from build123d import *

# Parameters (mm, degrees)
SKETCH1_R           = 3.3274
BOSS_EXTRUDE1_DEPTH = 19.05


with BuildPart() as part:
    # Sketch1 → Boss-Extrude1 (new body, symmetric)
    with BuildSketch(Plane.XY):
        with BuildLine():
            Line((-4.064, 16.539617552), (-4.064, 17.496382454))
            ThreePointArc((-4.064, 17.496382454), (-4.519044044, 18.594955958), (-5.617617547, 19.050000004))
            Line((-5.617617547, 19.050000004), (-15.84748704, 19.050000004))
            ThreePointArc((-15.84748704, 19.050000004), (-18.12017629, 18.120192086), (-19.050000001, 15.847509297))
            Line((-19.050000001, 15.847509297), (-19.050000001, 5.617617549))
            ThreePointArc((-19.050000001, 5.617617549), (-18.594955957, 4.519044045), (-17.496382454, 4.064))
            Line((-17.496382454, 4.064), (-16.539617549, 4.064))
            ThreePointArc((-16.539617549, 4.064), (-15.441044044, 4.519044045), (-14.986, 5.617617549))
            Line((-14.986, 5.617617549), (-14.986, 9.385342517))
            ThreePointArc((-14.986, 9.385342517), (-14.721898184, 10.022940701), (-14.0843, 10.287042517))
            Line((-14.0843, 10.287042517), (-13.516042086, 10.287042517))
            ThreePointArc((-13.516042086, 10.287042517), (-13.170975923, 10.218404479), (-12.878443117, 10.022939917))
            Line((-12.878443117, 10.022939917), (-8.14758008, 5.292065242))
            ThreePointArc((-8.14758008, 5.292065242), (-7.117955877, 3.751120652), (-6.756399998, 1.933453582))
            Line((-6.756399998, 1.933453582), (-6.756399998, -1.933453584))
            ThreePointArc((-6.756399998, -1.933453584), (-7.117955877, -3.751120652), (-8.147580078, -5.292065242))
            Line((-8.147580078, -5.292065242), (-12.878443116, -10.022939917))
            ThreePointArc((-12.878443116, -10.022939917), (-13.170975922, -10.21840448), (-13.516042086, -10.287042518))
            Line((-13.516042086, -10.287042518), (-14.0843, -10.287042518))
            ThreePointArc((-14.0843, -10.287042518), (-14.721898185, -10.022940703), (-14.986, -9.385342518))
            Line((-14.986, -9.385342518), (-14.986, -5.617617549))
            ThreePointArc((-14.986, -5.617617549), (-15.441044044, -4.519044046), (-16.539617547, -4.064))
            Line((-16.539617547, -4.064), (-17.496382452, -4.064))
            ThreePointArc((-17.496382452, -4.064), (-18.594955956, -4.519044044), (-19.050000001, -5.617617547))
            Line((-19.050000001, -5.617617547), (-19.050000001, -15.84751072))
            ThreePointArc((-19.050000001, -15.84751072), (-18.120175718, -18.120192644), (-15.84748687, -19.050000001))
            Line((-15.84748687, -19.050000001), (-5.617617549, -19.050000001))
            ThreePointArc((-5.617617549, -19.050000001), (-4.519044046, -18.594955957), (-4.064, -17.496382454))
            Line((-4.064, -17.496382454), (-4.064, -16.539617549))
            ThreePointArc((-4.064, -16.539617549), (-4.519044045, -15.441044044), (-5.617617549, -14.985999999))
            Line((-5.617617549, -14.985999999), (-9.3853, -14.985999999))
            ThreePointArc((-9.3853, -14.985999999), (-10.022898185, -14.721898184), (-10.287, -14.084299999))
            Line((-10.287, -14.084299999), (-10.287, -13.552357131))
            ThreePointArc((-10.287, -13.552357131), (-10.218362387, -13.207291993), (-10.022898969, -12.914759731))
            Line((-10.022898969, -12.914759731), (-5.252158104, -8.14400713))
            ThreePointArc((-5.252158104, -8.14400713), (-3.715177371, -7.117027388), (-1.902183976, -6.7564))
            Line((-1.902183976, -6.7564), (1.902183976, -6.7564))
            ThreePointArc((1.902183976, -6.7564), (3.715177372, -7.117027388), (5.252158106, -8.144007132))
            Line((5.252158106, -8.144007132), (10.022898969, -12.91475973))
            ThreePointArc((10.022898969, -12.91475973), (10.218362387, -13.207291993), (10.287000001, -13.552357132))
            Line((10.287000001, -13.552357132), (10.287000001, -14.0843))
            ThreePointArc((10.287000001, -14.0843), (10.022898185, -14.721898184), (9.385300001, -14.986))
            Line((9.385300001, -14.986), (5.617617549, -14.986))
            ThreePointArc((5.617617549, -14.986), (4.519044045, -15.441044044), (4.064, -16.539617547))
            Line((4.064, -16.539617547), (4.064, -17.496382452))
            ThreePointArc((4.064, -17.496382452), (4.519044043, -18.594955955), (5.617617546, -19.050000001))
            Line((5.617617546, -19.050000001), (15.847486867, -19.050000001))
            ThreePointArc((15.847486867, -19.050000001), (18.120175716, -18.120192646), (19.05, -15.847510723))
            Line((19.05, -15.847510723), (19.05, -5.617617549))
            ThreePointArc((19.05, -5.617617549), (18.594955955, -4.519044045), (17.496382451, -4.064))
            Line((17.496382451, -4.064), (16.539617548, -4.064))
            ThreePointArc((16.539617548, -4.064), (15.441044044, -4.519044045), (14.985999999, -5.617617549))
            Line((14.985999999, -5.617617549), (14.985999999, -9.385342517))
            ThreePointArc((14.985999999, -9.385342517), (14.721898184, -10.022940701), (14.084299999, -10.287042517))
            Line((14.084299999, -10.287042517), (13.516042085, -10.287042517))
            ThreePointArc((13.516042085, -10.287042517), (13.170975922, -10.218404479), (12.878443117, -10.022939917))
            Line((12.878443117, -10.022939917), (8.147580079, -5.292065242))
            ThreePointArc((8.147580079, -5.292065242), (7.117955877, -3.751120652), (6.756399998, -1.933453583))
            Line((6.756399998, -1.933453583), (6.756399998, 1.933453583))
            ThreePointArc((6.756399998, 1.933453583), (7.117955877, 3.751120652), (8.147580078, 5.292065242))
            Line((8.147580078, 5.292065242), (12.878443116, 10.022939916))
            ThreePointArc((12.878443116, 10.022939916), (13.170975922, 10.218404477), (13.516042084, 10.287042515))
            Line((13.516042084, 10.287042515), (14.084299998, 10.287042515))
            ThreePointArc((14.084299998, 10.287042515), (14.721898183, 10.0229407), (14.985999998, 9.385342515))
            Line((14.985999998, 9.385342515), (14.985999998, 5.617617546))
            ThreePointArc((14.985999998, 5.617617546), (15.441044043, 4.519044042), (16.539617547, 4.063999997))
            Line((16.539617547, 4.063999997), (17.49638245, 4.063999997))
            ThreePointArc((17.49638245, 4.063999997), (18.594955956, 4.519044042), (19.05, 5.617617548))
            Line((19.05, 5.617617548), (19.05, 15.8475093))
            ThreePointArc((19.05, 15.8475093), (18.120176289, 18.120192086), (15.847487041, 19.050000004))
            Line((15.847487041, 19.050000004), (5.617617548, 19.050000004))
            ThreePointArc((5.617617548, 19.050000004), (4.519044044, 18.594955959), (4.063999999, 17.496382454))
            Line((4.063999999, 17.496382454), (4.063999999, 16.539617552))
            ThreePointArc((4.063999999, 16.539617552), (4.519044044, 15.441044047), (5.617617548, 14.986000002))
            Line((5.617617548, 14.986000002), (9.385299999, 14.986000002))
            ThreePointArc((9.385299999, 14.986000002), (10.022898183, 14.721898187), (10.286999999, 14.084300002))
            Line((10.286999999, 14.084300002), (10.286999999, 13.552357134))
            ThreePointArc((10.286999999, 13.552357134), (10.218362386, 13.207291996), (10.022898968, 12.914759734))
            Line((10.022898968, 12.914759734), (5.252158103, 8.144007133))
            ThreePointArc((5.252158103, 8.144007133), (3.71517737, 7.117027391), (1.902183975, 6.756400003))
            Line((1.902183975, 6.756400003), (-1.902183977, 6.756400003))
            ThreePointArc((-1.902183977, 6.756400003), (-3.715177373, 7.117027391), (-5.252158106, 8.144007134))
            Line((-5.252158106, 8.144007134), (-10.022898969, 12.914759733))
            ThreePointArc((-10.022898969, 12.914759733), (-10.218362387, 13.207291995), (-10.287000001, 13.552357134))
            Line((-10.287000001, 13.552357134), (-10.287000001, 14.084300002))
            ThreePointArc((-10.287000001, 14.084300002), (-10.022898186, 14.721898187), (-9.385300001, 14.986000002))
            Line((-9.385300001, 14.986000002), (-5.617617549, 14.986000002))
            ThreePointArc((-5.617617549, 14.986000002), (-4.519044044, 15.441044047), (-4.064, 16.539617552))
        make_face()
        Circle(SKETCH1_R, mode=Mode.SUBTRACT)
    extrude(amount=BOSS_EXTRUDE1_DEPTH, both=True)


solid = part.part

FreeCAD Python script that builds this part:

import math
import FreeCAD as App
import Part
import Sketcher
from FreeCAD import Vector
Q = App.Units.Quantity

doc = App.newDocument("Part")
body = doc.addObject("PartDesign::Body", "Body")

# Sketch on XY plane
sketch1 = body.newObject("Sketcher::SketchObject", "Sketch")
sketch1.AttachmentSupport = (doc.getObject("XY_Plane"), [""])
sketch1.MapMode = "FlatFace"
sketch1.addGeometry(Part.LineSegment(Vector(-4.064, 16.539618, 0), Vector(-4.064, 17.496382, 0)), False)
sketch1.addGeometry(Part.ArcOfCircle(Part.Circle(Vector(-5.617618, 17.496382, 0), Vector(0, 0, 1), 1.553618), math.radians(0), math.radians(90)), False)
sketch1.addGeometry(Part.LineSegment(Vector(-5.617618, 19.05, 0), Vector(-15.847487, 19.05, 0)), False)
sketch1.addGeometry(Part.ArcOfCircle(Part.Circle(Vector(-15.87512, 15.87512, 0), Vector(0, 0, 1), 3.175), math.radians(89.501331), math.radians(180.498271)), False)
sketch1.addGeometry(Part.LineSegment(Vector(-19.05, 15.847509, 0), Vector(-19.05, 5.617618, 0)), False)
sketch1.addGeometry(Part.ArcOfCircle(Part.Circle(Vector(-17.496382, 5.617618, 0), Vector(0, 0, 1), 1.553618), math.radians(180), math.radians(270)), False)
sketch1.addGeometry(Part.LineSegment(Vector(-17.496382, 4.064, 0), Vector(-16.539618, 4.064, 0)), False)
sketch1.addGeometry(Part.ArcOfCircle(Part.Circle(Vector(-16.539618, 5.617618, 0), Vector(0, 0, 1), 1.553618), math.radians(-90), math.radians(0)), False)
sketch1.addGeometry(Part.LineSegment(Vector(-14.986, 5.617618, 0), Vector(-14.986, 9.385343, 0)), False)
sketch1.addGeometry(Part.ArcOfCircle(Part.Circle(Vector(-14.0843, 9.385343, 0), Vector(0, 0, 1), 0.9017), math.radians(90), math.radians(180)), False)
sketch1.addGeometry(Part.LineSegment(Vector(-14.0843, 10.287043, 0), Vector(-13.516042, 10.287043, 0)), False)
sketch1.addGeometry(Part.ArcOfCircle(Part.Circle(Vector(-13.516042, 9.385343, 0), Vector(0, 0, 1), 0.9017), math.radians(44.99993), math.radians(90)), False)
sketch1.addGeometry(Part.LineSegment(Vector(-12.878443, 10.02294, 0), Vector(-8.14758, 5.292065, 0)), False)
sketch1.addGeometry(Part.ArcOfCircle(Part.Circle(Vector(-11.5062, 1.933454, 0), Vector(0, 0, 1), 4.7498), math.radians(0), math.radians(44.99993)), False)
sketch1.addGeometry(Part.LineSegment(Vector(-6.7564, 1.933454, 0), Vector(-6.7564, -1.933454, 0)), False)
sketch1.addGeometry(Part.ArcOfCircle(Part.Circle(Vector(-11.5062, -1.933454, 0), Vector(0, 0, 1), 4.7498), math.radians(-44.99993), math.radians(0)), False)
sketch1.addGeometry(Part.LineSegment(Vector(-8.14758, -5.292065, 0), Vector(-12.878443, -10.02294, 0)), False)
sketch1.addGeometry(Part.ArcOfCircle(Part.Circle(Vector(-13.516042, -9.385343, 0), Vector(0, 0, 1), 0.9017), math.radians(-90), math.radians(-44.999929)), False)
sketch1.addGeometry(Part.LineSegment(Vector(-13.516042, -10.287043, 0), Vector(-14.0843, -10.287043, 0)), False)
sketch1.addGeometry(Part.ArcOfCircle(Part.Circle(Vector(-14.0843, -9.385343, 0), Vector(0, 0, 1), 0.9017), math.radians(180), math.radians(270)), False)
sketch1.addGeometry(Part.LineSegment(Vector(-14.986, -9.385343, 0), Vector(-14.986, -5.617618, 0)), False)
sketch1.addGeometry(Part.ArcOfCircle(Part.Circle(Vector(-16.539618, -5.617618, 0), Vector(0, 0, 1), 1.553618), math.radians(0), math.radians(90)), False)
sketch1.addGeometry(Part.LineSegment(Vector(-16.539618, -4.064, 0), Vector(-17.496382, -4.064, 0)), False)
sketch1.addGeometry(Part.ArcOfCircle(Part.Circle(Vector(-17.496382, -5.617618, 0), Vector(0, 0, 1), 1.553618), math.radians(90), math.radians(180)), False)
sketch1.addGeometry(Part.LineSegment(Vector(-19.05, -5.617618, 0), Vector(-19.05, -15.847511, 0)), False)
sketch1.addGeometry(Part.ArcOfCircle(Part.Circle(Vector(-15.87512, -15.87512, 0), Vector(0, 0, 1), 3.175), math.radians(179.501754), math.radians(270.498672)), False)
sketch1.addGeometry(Part.LineSegment(Vector(-15.847487, -19.05, 0), Vector(-5.617618, -19.05, 0)), False)
sketch1.addGeometry(Part.ArcOfCircle(Part.Circle(Vector(-5.617618, -17.496382, 0), Vector(0, 0, 1), 1.553618), math.radians(-90), math.radians(0)), False)
sketch1.addGeometry(Part.LineSegment(Vector(-4.064, -17.496382, 0), Vector(-4.064, -16.539618, 0)), False)
sketch1.addGeometry(Part.ArcOfCircle(Part.Circle(Vector(-5.617618, -16.539618, 0), Vector(0, 0, 1), 1.553618), math.radians(0), math.radians(90)), False)
sketch1.addGeometry(Part.LineSegment(Vector(-5.617618, -14.986, 0), Vector(-9.3853, -14.986, 0)), False)
sketch1.addGeometry(Part.ArcOfCircle(Part.Circle(Vector(-9.3853, -14.0843, 0), Vector(0, 0, 1), 0.9017), math.radians(180), math.radians(270)), False)
sketch1.addGeometry(Part.LineSegment(Vector(-10.287, -14.0843, 0), Vector(-10.287, -13.552357, 0)), False)
sketch1.addGeometry(Part.ArcOfCircle(Part.Circle(Vector(-9.3853, -13.552357, 0), Vector(0, 0, 1), 0.9017), math.radians(135.00007), math.radians(180)), False)
sketch1.addGeometry(Part.LineSegment(Vector(-10.022899, -12.91476, 0), Vector(-5.252158, -8.144007, 0)), False)
sketch1.addGeometry(Part.ArcOfCircle(Part.Circle(Vector(-1.902184, -11.493973, 0), Vector(0, 0, 1), 4.737573), math.radians(90), math.radians(135.00007)), False)
sketch1.addGeometry(Part.LineSegment(Vector(-1.902184, -6.7564, 0), Vector(1.902184, -6.7564, 0)), False)
sketch1.addGeometry(Part.ArcOfCircle(Part.Circle(Vector(1.902184, -11.493973, 0), Vector(0, 0, 1), 4.737573), math.radians(44.99993), math.radians(90)), False)
sketch1.addGeometry(Part.LineSegment(Vector(5.252158, -8.144007, 0), Vector(10.022899, -12.91476, 0)), False)
sketch1.addGeometry(Part.ArcOfCircle(Part.Circle(Vector(9.3853, -13.552357, 0), Vector(0, 0, 1), 0.9017), math.radians(0), math.radians(44.999929)), False)
sketch1.addGeometry(Part.LineSegment(Vector(10.287, -13.552357, 0), Vector(10.287, -14.0843, 0)), False)
sketch1.addGeometry(Part.ArcOfCircle(Part.Circle(Vector(9.3853, -14.0843, 0), Vector(0, 0, 1), 0.9017), math.radians(-90), math.radians(0)), False)
sketch1.addGeometry(Part.LineSegment(Vector(9.3853, -14.986, 0), Vector(5.617618, -14.986, 0)), False)
sketch1.addGeometry(Part.ArcOfCircle(Part.Circle(Vector(5.617618, -16.539618, 0), Vector(0, 0, 1), 1.553618), math.radians(90), math.radians(180)), False)
sketch1.addGeometry(Part.LineSegment(Vector(4.064, -16.539618, 0), Vector(4.064, -17.496382, 0)), False)
sketch1.addGeometry(Part.ArcOfCircle(Part.Circle(Vector(5.617618, -17.496382, 0), Vector(0, 0, 1), 1.553618), math.radians(180), math.radians(270)), False)
sketch1.addGeometry(Part.LineSegment(Vector(5.617618, -19.05, 0), Vector(15.847487, -19.05, 0)), False)
sketch1.addGeometry(Part.ArcOfCircle(Part.Circle(Vector(15.87512, -15.87512, 0), Vector(0, 0, 1), 3.175), math.radians(-90.498672), math.radians(0.498246)), False)
sketch1.addGeometry(Part.LineSegment(Vector(19.05, -15.847511, 0), Vector(19.05, -5.617618, 0)), False)
sketch1.addGeometry(Part.ArcOfCircle(Part.Circle(Vector(17.496382, -5.617618, 0), Vector(0, 0, 1), 1.553618), math.radians(0), math.radians(90)), False)
sketch1.addGeometry(Part.LineSegment(Vector(17.496382, -4.064, 0), Vector(16.539618, -4.064, 0)), False)
sketch1.addGeometry(Part.ArcOfCircle(Part.Circle(Vector(16.539618, -5.617618, 0), Vector(0, 0, 1), 1.553618), math.radians(90), math.radians(180)), False)
sketch1.addGeometry(Part.LineSegment(Vector(14.986, -5.617618, 0), Vector(14.986, -9.385343, 0)), False)
sketch1.addGeometry(Part.ArcOfCircle(Part.Circle(Vector(14.0843, -9.385343, 0), Vector(0, 0, 1), 0.9017), math.radians(-90), math.radians(0)), False)
sketch1.addGeometry(Part.LineSegment(Vector(14.0843, -10.287043, 0), Vector(13.516042, -10.287043, 0)), False)
sketch1.addGeometry(Part.ArcOfCircle(Part.Circle(Vector(13.516042, -9.385343, 0), Vector(0, 0, 1), 0.9017), math.radians(-135.000071), math.radians(-90)), False)
sketch1.addGeometry(Part.LineSegment(Vector(12.878443, -10.02294, 0), Vector(8.14758, -5.292065, 0)), False)
sketch1.addGeometry(Part.ArcOfCircle(Part.Circle(Vector(11.5062, -1.933454, 0), Vector(0, 0, 1), 4.7498), math.radians(180), math.radians(224.99993)), False)
sketch1.addGeometry(Part.LineSegment(Vector(6.7564, -1.933454, 0), Vector(6.7564, 1.933454, 0)), False)
sketch1.addGeometry(Part.ArcOfCircle(Part.Circle(Vector(11.5062, 1.933454, 0), Vector(0, 0, 1), 4.7498), math.radians(135.00007), math.radians(180)), False)
sketch1.addGeometry(Part.LineSegment(Vector(8.14758, 5.292065, 0), Vector(12.878443, 10.02294, 0)), False)
sketch1.addGeometry(Part.ArcOfCircle(Part.Circle(Vector(13.516042, 9.385343, 0), Vector(0, 0, 1), 0.9017), math.radians(90), math.radians(135.00007)), False)
sketch1.addGeometry(Part.LineSegment(Vector(13.516042, 10.287043, 0), Vector(14.0843, 10.287043, 0)), False)
sketch1.addGeometry(Part.ArcOfCircle(Part.Circle(Vector(14.0843, 9.385343, 0), Vector(0, 0, 1), 0.9017), math.radians(0), math.radians(90)), False)
sketch1.addGeometry(Part.LineSegment(Vector(14.986, 9.385343, 0), Vector(14.986, 5.617618, 0)), False)
sketch1.addGeometry(Part.ArcOfCircle(Part.Circle(Vector(16.539618, 5.617618, 0), Vector(0, 0, 1), 1.553618), math.radians(-180), math.radians(-90)), False)
sketch1.addGeometry(Part.LineSegment(Vector(16.539618, 4.064, 0), Vector(17.496382, 4.064, 0)), False)
sketch1.addGeometry(Part.ArcOfCircle(Part.Circle(Vector(17.496382, 5.617618, 0), Vector(0, 0, 1), 1.553618), math.radians(-90), math.radians(0)), False)
sketch1.addGeometry(Part.LineSegment(Vector(19.05, 5.617618, 0), Vector(19.05, 15.847509, 0)), False)
sketch1.addGeometry(Part.ArcOfCircle(Part.Circle(Vector(15.87512, 15.87512, 0), Vector(0, 0, 1), 3.175), math.radians(-0.498271), math.radians(90.498669)), False)
sketch1.addGeometry(Part.LineSegment(Vector(15.847487, 19.05, 0), Vector(5.617618, 19.05, 0)), False)
sketch1.addGeometry(Part.ArcOfCircle(Part.Circle(Vector(5.617618, 17.496382, 0), Vector(0, 0, 1), 1.553618), math.radians(90), math.radians(180)), False)
sketch1.addGeometry(Part.LineSegment(Vector(4.064, 17.496382, 0), Vector(4.064, 16.539618, 0)), False)
sketch1.addGeometry(Part.ArcOfCircle(Part.Circle(Vector(5.617618, 16.539618, 0), Vector(0, 0, 1), 1.553618), math.radians(180), math.radians(270)), False)
sketch1.addGeometry(Part.LineSegment(Vector(5.617618, 14.986, 0), Vector(9.3853, 14.986, 0)), False)
sketch1.addGeometry(Part.ArcOfCircle(Part.Circle(Vector(9.3853, 14.0843, 0), Vector(0, 0, 1), 0.9017), math.radians(0), math.radians(90)), False)
sketch1.addGeometry(Part.LineSegment(Vector(10.287, 14.0843, 0), Vector(10.287, 13.552357, 0)), False)
sketch1.addGeometry(Part.ArcOfCircle(Part.Circle(Vector(9.3853, 13.552357, 0), Vector(0, 0, 1), 0.9017), math.radians(-44.99993), math.radians(0)), False)
sketch1.addGeometry(Part.LineSegment(Vector(10.022899, 12.91476, 0), Vector(5.252158, 8.144007, 0)), False)
sketch1.addGeometry(Part.ArcOfCircle(Part.Circle(Vector(1.902184, 11.493973, 0), Vector(0, 0, 1), 4.737573), math.radians(-90), math.radians(-44.99993)), False)
sketch1.addGeometry(Part.LineSegment(Vector(1.902184, 6.7564, 0), Vector(-1.902184, 6.7564, 0)), False)
sketch1.addGeometry(Part.ArcOfCircle(Part.Circle(Vector(-1.902184, 11.493973, 0), Vector(0, 0, 1), 4.737573), math.radians(-135.00007), math.radians(-90)), False)
sketch1.addGeometry(Part.LineSegment(Vector(-5.252158, 8.144007, 0), Vector(-10.022899, 12.91476, 0)), False)
sketch1.addGeometry(Part.ArcOfCircle(Part.Circle(Vector(-9.3853, 13.552357, 0), Vector(0, 0, 1), 0.9017), math.radians(-180), math.radians(-135.000071)), False)
sketch1.addGeometry(Part.LineSegment(Vector(-10.287, 13.552357, 0), Vector(-10.287, 14.0843, 0)), False)
sketch1.addGeometry(Part.ArcOfCircle(Part.Circle(Vector(-9.3853, 14.0843, 0), Vector(0, 0, 1), 0.9017), math.radians(90), math.radians(180)), False)
sketch1.addGeometry(Part.LineSegment(Vector(-9.3853, 14.986, 0), Vector(-5.617618, 14.986, 0)), False)
sketch1.addGeometry(Part.ArcOfCircle(Part.Circle(Vector(-5.617618, 16.539618, 0), Vector(0, 0, 1), 1.553618), math.radians(-90), math.radians(0)), False)
sketch1.addGeometry(Part.Circle(Vector(0, 0, 0), Vector(0, 0, 1), 3.3274), False)
sketch1.addConstraint(Sketcher.Constraint("Tangent", 0, 2, 1, 1))
sketch1.addConstraint(Sketcher.Constraint("Tangent", 1, 2, 2, 1))
sketch1.addConstraint(Sketcher.Constraint("Coincident", 2, 2, 3, 1))
sketch1.addConstraint(Sketcher.Constraint("Coincident", 3, 2, 4, 1))
sketch1.addConstraint(Sketcher.Constraint("Tangent", 4, 2, 5, 1))
sketch1.addConstraint(Sketcher.Constraint("Tangent", 5, 2, 6, 1))
sketch1.addConstraint(Sketcher.Constraint("Tangent", 6, 2, 7, 1))
sketch1.addConstraint(Sketcher.Constraint("Tangent", 7, 2, 8, 1))
sketch1.addConstraint(Sketcher.Constraint("Tangent", 8, 2, 9, 2))
sketch1.addConstraint(Sketcher.Constraint("Tangent", 9, 1, 10, 1))
sketch1.addConstraint(Sketcher.Constraint("Tangent", 10, 2, 11, 2))
sketch1.addConstraint(Sketcher.Constraint("Tangent", 11, 1, 12, 1))
sketch1.addConstraint(Sketcher.Constraint("Tangent", 12, 2, 13, 2))
sketch1.addConstraint(Sketcher.Constraint("Tangent", 13, 1, 14, 1))
sketch1.addConstraint(Sketcher.Constraint("Tangent", 14, 2, 15, 2))
sketch1.addConstraint(Sketcher.Constraint("Tangent", 15, 1, 16, 1))
sketch1.addConstraint(Sketcher.Constraint("Tangent", 16, 2, 17, 2))
sketch1.addConstraint(Sketcher.Constraint("Tangent", 17, 1, 18, 1))
sketch1.addConstraint(Sketcher.Constraint("Tangent", 18, 2, 19, 2))
sketch1.addConstraint(Sketcher.Constraint("Tangent", 19, 1, 20, 1))
sketch1.addConstraint(Sketcher.Constraint("Tangent", 20, 2, 21, 1))
sketch1.addConstraint(Sketcher.Constraint("Tangent", 21, 2, 22, 1))
sketch1.addConstraint(Sketcher.Constraint("Tangent", 22, 2, 23, 1))
sketch1.addConstraint(Sketcher.Constraint("Tangent", 23, 2, 24, 1))
sketch1.addConstraint(Sketcher.Constraint("Coincident", 24, 2, 25, 1))
sketch1.addConstraint(Sketcher.Constraint("Coincident", 25, 2, 26, 1))
sketch1.addConstraint(Sketcher.Constraint("Tangent", 26, 2, 27, 1))
sketch1.addConstraint(Sketcher.Constraint("Tangent", 27, 2, 28, 1))
sketch1.addConstraint(Sketcher.Constraint("Tangent", 28, 2, 29, 1))
sketch1.addConstraint(Sketcher.Constraint("Tangent", 29, 2, 30, 1))
sketch1.addConstraint(Sketcher.Constraint("Tangent", 30, 2, 31, 2))
sketch1.addConstraint(Sketcher.Constraint("Tangent", 31, 1, 32, 1))
sketch1.addConstraint(Sketcher.Constraint("Tangent", 32, 2, 33, 2))
sketch1.addConstraint(Sketcher.Constraint("Tangent", 33, 1, 34, 1))
sketch1.addConstraint(Sketcher.Constraint("Tangent", 34, 2, 35, 2))
sketch1.addConstraint(Sketcher.Constraint("Tangent", 35, 1, 36, 1))
sketch1.addConstraint(Sketcher.Constraint("Tangent", 36, 2, 37, 2))
sketch1.addConstraint(Sketcher.Constraint("Tangent", 37, 1, 38, 1))
sketch1.addConstraint(Sketcher.Constraint("Tangent", 38, 2, 39, 2))
sketch1.addConstraint(Sketcher.Constraint("Tangent", 39, 1, 40, 1))
sketch1.addConstraint(Sketcher.Constraint("Tangent", 40, 2, 41, 2))
sketch1.addConstraint(Sketcher.Constraint("Tangent", 41, 1, 42, 1))
sketch1.addConstraint(Sketcher.Constraint("Tangent", 42, 2, 43, 1))
sketch1.addConstraint(Sketcher.Constraint("Tangent", 43, 2, 44, 1))
sketch1.addConstraint(Sketcher.Constraint("Tangent", 44, 2, 45, 1))
sketch1.addConstraint(Sketcher.Constraint("Tangent", 45, 2, 46, 1))
sketch1.addConstraint(Sketcher.Constraint("Coincident", 46, 2, 47, 1))
sketch1.addConstraint(Sketcher.Constraint("Coincident", 47, 2, 48, 1))
sketch1.addConstraint(Sketcher.Constraint("Tangent", 48, 2, 49, 1))
sketch1.addConstraint(Sketcher.Constraint("Tangent", 49, 2, 50, 1))
sketch1.addConstraint(Sketcher.Constraint("Tangent", 50, 2, 51, 1))
sketch1.addConstraint(Sketcher.Constraint("Tangent", 51, 2, 52, 1))
sketch1.addConstraint(Sketcher.Constraint("Tangent", 52, 2, 53, 2))
sketch1.addConstraint(Sketcher.Constraint("Tangent", 53, 1, 54, 1))
sketch1.addConstraint(Sketcher.Constraint("Tangent", 54, 2, 55, 2))
sketch1.addConstraint(Sketcher.Constraint("Tangent", 55, 1, 56, 1))
sketch1.addConstraint(Sketcher.Constraint("Tangent", 56, 2, 57, 2))
sketch1.addConstraint(Sketcher.Constraint("Tangent", 57, 1, 58, 1))
sketch1.addConstraint(Sketcher.Constraint("Tangent", 58, 2, 59, 2))
sketch1.addConstraint(Sketcher.Constraint("Tangent", 59, 1, 60, 1))
sketch1.addConstraint(Sketcher.Constraint("Tangent", 60, 2, 61, 2))
sketch1.addConstraint(Sketcher.Constraint("Tangent", 61, 1, 62, 1))
sketch1.addConstraint(Sketcher.Constraint("Tangent", 62, 2, 63, 2))
sketch1.addConstraint(Sketcher.Constraint("Tangent", 63, 1, 64, 1))
sketch1.addConstraint(Sketcher.Constraint("Tangent", 64, 2, 65, 1))
sketch1.addConstraint(Sketcher.Constraint("Tangent", 65, 2, 66, 1))
sketch1.addConstraint(Sketcher.Constraint("Tangent", 66, 2, 67, 1))
sketch1.addConstraint(Sketcher.Constraint("Tangent", 67, 2, 68, 1))
sketch1.addConstraint(Sketcher.Constraint("Coincident", 68, 2, 69, 1))
sketch1.addConstraint(Sketcher.Constraint("Coincident", 69, 2, 70, 1))
sketch1.addConstraint(Sketcher.Constraint("Tangent", 70, 2, 71, 1))
sketch1.addConstraint(Sketcher.Constraint("Tangent", 71, 2, 72, 1))
sketch1.addConstraint(Sketcher.Constraint("Tangent", 72, 2, 73, 1))
sketch1.addConstraint(Sketcher.Constraint("Tangent", 73, 2, 74, 1))
sketch1.addConstraint(Sketcher.Constraint("Tangent", 74, 2, 75, 2))
sketch1.addConstraint(Sketcher.Constraint("Tangent", 75, 1, 76, 1))
sketch1.addConstraint(Sketcher.Constraint("Tangent", 76, 2, 77, 2))
sketch1.addConstraint(Sketcher.Constraint("Tangent", 77, 1, 78, 1))
sketch1.addConstraint(Sketcher.Constraint("Tangent", 78, 2, 79, 2))
sketch1.addConstraint(Sketcher.Constraint("Tangent", 79, 1, 80, 1))
sketch1.addConstraint(Sketcher.Constraint("Tangent", 80, 2, 81, 2))
sketch1.addConstraint(Sketcher.Constraint("Tangent", 81, 1, 82, 1))
sketch1.addConstraint(Sketcher.Constraint("Tangent", 82, 2, 83, 2))
sketch1.addConstraint(Sketcher.Constraint("Tangent", 83, 1, 84, 1))
sketch1.addConstraint(Sketcher.Constraint("Tangent", 84, 2, 85, 2))
sketch1.addConstraint(Sketcher.Constraint("Tangent", 85, 1, 86, 1))
sketch1.addConstraint(Sketcher.Constraint("Tangent", 86, 2, 87, 1))
sketch1.addConstraint(Sketcher.Constraint("Tangent", 87, 2, 0, 1))
sketch1.addConstraint(Sketcher.Constraint("Vertical", 0))
sketch1.addConstraint(Sketcher.Constraint("Horizontal", 2))
sketch1.addConstraint(Sketcher.Constraint("Vertical", 4))
sketch1.addConstraint(Sketcher.Constraint("Horizontal", 6))
sketch1.addConstraint(Sketcher.Constraint("Vertical", 8))
sketch1.addConstraint(Sketcher.Constraint("Horizontal", 10))
sketch1.addConstraint(Sketcher.Constraint("Vertical", 14))
sketch1.addConstraint(Sketcher.Constraint("Horizontal", 18))
sketch1.addConstraint(Sketcher.Constraint("Vertical", 20))
sketch1.addConstraint(Sketcher.Constraint("Horizontal", 22))
sketch1.addConstraint(Sketcher.Constraint("Vertical", 24))
sketch1.addConstraint(Sketcher.Constraint("Horizontal", 26))
sketch1.addConstraint(Sketcher.Constraint("Vertical", 28))
sketch1.addConstraint(Sketcher.Constraint("Horizontal", 30))
sketch1.addConstraint(Sketcher.Constraint("Vertical", 32))
sketch1.addConstraint(Sketcher.Constraint("Horizontal", 36))
sketch1.addConstraint(Sketcher.Constraint("Vertical", 40))
sketch1.addConstraint(Sketcher.Constraint("Horizontal", 42))
sketch1.addConstraint(Sketcher.Constraint("Vertical", 44))
sketch1.addConstraint(Sketcher.Constraint("Horizontal", 46))
sketch1.addConstraint(Sketcher.Constraint("Vertical", 48))
sketch1.addConstraint(Sketcher.Constraint("Horizontal", 50))
sketch1.addConstraint(Sketcher.Constraint("Vertical", 52))
sketch1.addConstraint(Sketcher.Constraint("Horizontal", 54))
sketch1.addConstraint(Sketcher.Constraint("Vertical", 58))
sketch1.addConstraint(Sketcher.Constraint("Horizontal", 62))
sketch1.addConstraint(Sketcher.Constraint("Vertical", 64))
sketch1.addConstraint(Sketcher.Constraint("Horizontal", 66))
sketch1.addConstraint(Sketcher.Constraint("Vertical", 68))
sketch1.addConstraint(Sketcher.Constraint("Horizontal", 70))
sketch1.addConstraint(Sketcher.Constraint("Vertical", 72))
sketch1.addConstraint(Sketcher.Constraint("Horizontal", 74))
sketch1.addConstraint(Sketcher.Constraint("Vertical", 76))
sketch1.addConstraint(Sketcher.Constraint("Horizontal", 80))
sketch1.addConstraint(Sketcher.Constraint("Vertical", 84))
sketch1.addConstraint(Sketcher.Constraint("Horizontal", 86))
sketch1.addConstraint(Sketcher.Constraint("Coincident", 88, 3, -1, 1))
sketch1.addConstraint(Sketcher.Constraint("Equal", 1, 5))
sketch1.addConstraint(Sketcher.Constraint("Equal", 5, 7))
sketch1.addConstraint(Sketcher.Constraint("Equal", 9, 11))
sketch1.addConstraint(Sketcher.Constraint("Equal", 13, 15))
sketch1.addConstraint(Sketcher.Constraint("Equal", 11, 17))
sketch1.addConstraint(Sketcher.Constraint("Equal", 17, 19))
sketch1.addConstraint(Sketcher.Constraint("Equal", 7, 21))
sketch1.addConstraint(Sketcher.Constraint("Equal", 21, 23))
sketch1.addConstraint(Sketcher.Constraint("Equal", 3, 25))
sketch1.addConstraint(Sketcher.Constraint("Equal", 23, 27))
sketch1.addConstraint(Sketcher.Constraint("Equal", 27, 29))
sketch1.addConstraint(Sketcher.Constraint("Equal", 19, 31))
sketch1.addConstraint(Sketcher.Constraint("Equal", 31, 33))
sketch1.addConstraint(Sketcher.Constraint("Equal", 35, 37))
sketch1.addConstraint(Sketcher.Constraint("Equal", 33, 39))
sketch1.addConstraint(Sketcher.Constraint("Equal", 39, 41))
sketch1.addConstraint(Sketcher.Constraint("Equal", 29, 43))
sketch1.addConstraint(Sketcher.Constraint("Equal", 43, 45))
sketch1.addConstraint(Sketcher.Constraint("Equal", 25, 47))
sketch1.addConstraint(Sketcher.Constraint("Equal", 45, 49))
sketch1.addConstraint(Sketcher.Constraint("Equal", 49, 51))
sketch1.addConstraint(Sketcher.Constraint("Equal", 41, 53))
sketch1.addConstraint(Sketcher.Constraint("Equal", 53, 55))
sketch1.addConstraint(Sketcher.Constraint("Equal", 15, 57))
sketch1.addConstraint(Sketcher.Constraint("Equal", 57, 59))
sketch1.addConstraint(Sketcher.Constraint("Equal", 55, 61))
sketch1.addConstraint(Sketcher.Constraint("Equal", 61, 63))
sketch1.addConstraint(Sketcher.Constraint("Equal", 51, 65))
sketch1.addConstraint(Sketcher.Constraint("Equal", 65, 67))
sketch1.addConstraint(Sketcher.Constraint("Equal", 47, 69))
sketch1.addConstraint(Sketcher.Constraint("Equal", 67, 71))
sketch1.addConstraint(Sketcher.Constraint("Equal", 71, 73))
sketch1.addConstraint(Sketcher.Constraint("Equal", 63, 75))
sketch1.addConstraint(Sketcher.Constraint("Equal", 75, 77))
sketch1.addConstraint(Sketcher.Constraint("Equal", 37, 79))
sketch1.addConstraint(Sketcher.Constraint("Equal", 79, 81))
sketch1.addConstraint(Sketcher.Constraint("Equal", 77, 83))
sketch1.addConstraint(Sketcher.Constraint("Equal", 83, 85))
sketch1.addConstraint(Sketcher.Constraint("Equal", 73, 87))
sketch1.addConstraint(Sketcher.Constraint("Symmetric", 1, 3, 45, 3, -1, 1))
sketch1.addConstraint(Sketcher.Constraint("Symmetric", 3, 3, 47, 3, -1, 1))
sketch1.addConstraint(Sketcher.Constraint("Symmetric", 5, 3, 49, 3, -1, 1))
sketch1.addConstraint(Sketcher.Constraint("Symmetric", 9, 3, 53, 3, -1, 1))
sketch1.addConstraint(Sketcher.Constraint("Symmetric", 13, 3, 57, 3, -1, 1))
sketch1.addConstraint(Sketcher.Constraint("Symmetric", 17, 3, 61, 3, -1, 1))
sketch1.addConstraint(Sketcher.Constraint("Symmetric", 21, 3, 65, 3, -1, 1))
sketch1.addConstraint(Sketcher.Constraint("Symmetric", 25, 3, 69, 3, -1, 1))
sketch1.addConstraint(Sketcher.Constraint("Symmetric", 27, 3, 71, 3, -1, 1))
sketch1.addConstraint(Sketcher.Constraint("Symmetric", 31, 3, 75, 3, -1, 1))
sketch1.addConstraint(Sketcher.Constraint("Symmetric", 35, 3, 79, 3, -1, 1))
sketch1.addConstraint(Sketcher.Constraint("Symmetric", 39, 3, 83, 3, -1, 1))
sketch1.addConstraint(Sketcher.Constraint("Symmetric", 33, 3, 39, 3, -2))
sketch1.addConstraint(Sketcher.Constraint("Symmetric", 29, 3, 43, 3, -2))
sketch1.addConstraint(Sketcher.Constraint("Symmetric", 25, 3, 47, 3, -2))
sketch1.addConstraint(Sketcher.Constraint("Symmetric", 23, 3, 49, 3, -2))
sketch1.addConstraint(Sketcher.Constraint("Symmetric", 19, 3, 53, 3, -2))
sketch1.addConstraint(Sketcher.Constraint("Symmetric", 16, 2, 55, 1, -2))
sketch1.addConstraint(Sketcher.Constraint("Symmetric", 12, 2, 59, 1, -2))
sketch1.addConstraint(Sketcher.Constraint("Symmetric", 78, 2, 81, 1, -2))
sketch1.addConstraint(Sketcher.Constraint("Parallel", 16, 34))
sketch1.addConstraint(Sketcher.Constraint("Parallel", 12, 38))
sketch1.addConstraint(Sketcher.Constraint("Horizontal", 27, 3, 45, 3))
sketch1.addConstraint(Sketcher.Constraint("Horizontal", 75, 3, 85, 3))
sketch1.addConstraint(Sketcher.Constraint("Horizontal", 3, 2, 68, 2))
sketch1.addConstraint(Sketcher.Constraint("Equal", 66, 0))
sketch1.addConstraint(Sketcher.Constraint("Diameter", 88, Q("0.262 in")))
sketch1.addConstraint(Sketcher.Constraint("Radius", 3, Q("0.125 in")))
sketch1.addConstraint(Sketcher.Constraint("Radius", 13, Q("0.187 in")))
sketch1.addConstraint(Sketcher.Constraint("Radius", 9, Q("0.0355 in")))
sketch1.addConstraint(Sketcher.Constraint("DistanceX", 0, 2, -1, 1, Q("0.16 in")))
sketch1.addConstraint(Sketcher.Constraint("DistanceY", -1, 1, 1, 2, Q("0.75 in")))
sketch1.addConstraint(Sketcher.Constraint("DistanceX", 3, 2, -1, 1, Q("0.75 in")))
sketch1.addConstraint(Sketcher.Constraint("DistanceY", -1, 1, 5, 2, Q("0.16 in")))
sketch1.addConstraint(Sketcher.Constraint("DistanceX", 7, 2, -1, 1, Q("0.59 in")))
sketch1.addConstraint(Sketcher.Constraint("DistanceX", 13, 3, -1, 1, Q("0.453 in")))
sketch1.addConstraint(Sketcher.Constraint("DistanceX", 31, 1, -1, 1, Q("0.405 in")))
sketch1.addConstraint(Sketcher.Constraint("DistanceY", 35, 1, -1, 1, Q("0.266 in")))
sketch1.addConstraint(Sketcher.Constraint("Radius", 1, 1.553618))
sketch1.addConstraint(Sketcher.Constraint("Radius", 35, 4.737573))
sketch1.addConstraint(Sketcher.Constraint("DistanceX", 2, 2, 2, 1, 10.229869))
sketch1.addConstraint(Sketcher.Constraint("DistanceY", 4, 2, 4, 1, 10.229892))
sketch1.addConstraint(Sketcher.Constraint("DistanceX", 33, 1, -1, 1, 10.022899))
sketch1.addConstraint(Sketcher.Constraint("Distance", 12, 6.690459))
sketch1.addConstraint(Sketcher.Constraint("DistanceX", 36, 1, 36, 2, 3.804368))
sketch1.addConstraint(Sketcher.Constraint("DistanceY", 8, 1, 8, 2, 3.767725))
pad1 = body.newObject("PartDesign::Pad", "Pad")
pad1.Profile = sketch1
pad1.Length = Q("1.5 in")
pad1.Midplane = True

doc.recompute()
